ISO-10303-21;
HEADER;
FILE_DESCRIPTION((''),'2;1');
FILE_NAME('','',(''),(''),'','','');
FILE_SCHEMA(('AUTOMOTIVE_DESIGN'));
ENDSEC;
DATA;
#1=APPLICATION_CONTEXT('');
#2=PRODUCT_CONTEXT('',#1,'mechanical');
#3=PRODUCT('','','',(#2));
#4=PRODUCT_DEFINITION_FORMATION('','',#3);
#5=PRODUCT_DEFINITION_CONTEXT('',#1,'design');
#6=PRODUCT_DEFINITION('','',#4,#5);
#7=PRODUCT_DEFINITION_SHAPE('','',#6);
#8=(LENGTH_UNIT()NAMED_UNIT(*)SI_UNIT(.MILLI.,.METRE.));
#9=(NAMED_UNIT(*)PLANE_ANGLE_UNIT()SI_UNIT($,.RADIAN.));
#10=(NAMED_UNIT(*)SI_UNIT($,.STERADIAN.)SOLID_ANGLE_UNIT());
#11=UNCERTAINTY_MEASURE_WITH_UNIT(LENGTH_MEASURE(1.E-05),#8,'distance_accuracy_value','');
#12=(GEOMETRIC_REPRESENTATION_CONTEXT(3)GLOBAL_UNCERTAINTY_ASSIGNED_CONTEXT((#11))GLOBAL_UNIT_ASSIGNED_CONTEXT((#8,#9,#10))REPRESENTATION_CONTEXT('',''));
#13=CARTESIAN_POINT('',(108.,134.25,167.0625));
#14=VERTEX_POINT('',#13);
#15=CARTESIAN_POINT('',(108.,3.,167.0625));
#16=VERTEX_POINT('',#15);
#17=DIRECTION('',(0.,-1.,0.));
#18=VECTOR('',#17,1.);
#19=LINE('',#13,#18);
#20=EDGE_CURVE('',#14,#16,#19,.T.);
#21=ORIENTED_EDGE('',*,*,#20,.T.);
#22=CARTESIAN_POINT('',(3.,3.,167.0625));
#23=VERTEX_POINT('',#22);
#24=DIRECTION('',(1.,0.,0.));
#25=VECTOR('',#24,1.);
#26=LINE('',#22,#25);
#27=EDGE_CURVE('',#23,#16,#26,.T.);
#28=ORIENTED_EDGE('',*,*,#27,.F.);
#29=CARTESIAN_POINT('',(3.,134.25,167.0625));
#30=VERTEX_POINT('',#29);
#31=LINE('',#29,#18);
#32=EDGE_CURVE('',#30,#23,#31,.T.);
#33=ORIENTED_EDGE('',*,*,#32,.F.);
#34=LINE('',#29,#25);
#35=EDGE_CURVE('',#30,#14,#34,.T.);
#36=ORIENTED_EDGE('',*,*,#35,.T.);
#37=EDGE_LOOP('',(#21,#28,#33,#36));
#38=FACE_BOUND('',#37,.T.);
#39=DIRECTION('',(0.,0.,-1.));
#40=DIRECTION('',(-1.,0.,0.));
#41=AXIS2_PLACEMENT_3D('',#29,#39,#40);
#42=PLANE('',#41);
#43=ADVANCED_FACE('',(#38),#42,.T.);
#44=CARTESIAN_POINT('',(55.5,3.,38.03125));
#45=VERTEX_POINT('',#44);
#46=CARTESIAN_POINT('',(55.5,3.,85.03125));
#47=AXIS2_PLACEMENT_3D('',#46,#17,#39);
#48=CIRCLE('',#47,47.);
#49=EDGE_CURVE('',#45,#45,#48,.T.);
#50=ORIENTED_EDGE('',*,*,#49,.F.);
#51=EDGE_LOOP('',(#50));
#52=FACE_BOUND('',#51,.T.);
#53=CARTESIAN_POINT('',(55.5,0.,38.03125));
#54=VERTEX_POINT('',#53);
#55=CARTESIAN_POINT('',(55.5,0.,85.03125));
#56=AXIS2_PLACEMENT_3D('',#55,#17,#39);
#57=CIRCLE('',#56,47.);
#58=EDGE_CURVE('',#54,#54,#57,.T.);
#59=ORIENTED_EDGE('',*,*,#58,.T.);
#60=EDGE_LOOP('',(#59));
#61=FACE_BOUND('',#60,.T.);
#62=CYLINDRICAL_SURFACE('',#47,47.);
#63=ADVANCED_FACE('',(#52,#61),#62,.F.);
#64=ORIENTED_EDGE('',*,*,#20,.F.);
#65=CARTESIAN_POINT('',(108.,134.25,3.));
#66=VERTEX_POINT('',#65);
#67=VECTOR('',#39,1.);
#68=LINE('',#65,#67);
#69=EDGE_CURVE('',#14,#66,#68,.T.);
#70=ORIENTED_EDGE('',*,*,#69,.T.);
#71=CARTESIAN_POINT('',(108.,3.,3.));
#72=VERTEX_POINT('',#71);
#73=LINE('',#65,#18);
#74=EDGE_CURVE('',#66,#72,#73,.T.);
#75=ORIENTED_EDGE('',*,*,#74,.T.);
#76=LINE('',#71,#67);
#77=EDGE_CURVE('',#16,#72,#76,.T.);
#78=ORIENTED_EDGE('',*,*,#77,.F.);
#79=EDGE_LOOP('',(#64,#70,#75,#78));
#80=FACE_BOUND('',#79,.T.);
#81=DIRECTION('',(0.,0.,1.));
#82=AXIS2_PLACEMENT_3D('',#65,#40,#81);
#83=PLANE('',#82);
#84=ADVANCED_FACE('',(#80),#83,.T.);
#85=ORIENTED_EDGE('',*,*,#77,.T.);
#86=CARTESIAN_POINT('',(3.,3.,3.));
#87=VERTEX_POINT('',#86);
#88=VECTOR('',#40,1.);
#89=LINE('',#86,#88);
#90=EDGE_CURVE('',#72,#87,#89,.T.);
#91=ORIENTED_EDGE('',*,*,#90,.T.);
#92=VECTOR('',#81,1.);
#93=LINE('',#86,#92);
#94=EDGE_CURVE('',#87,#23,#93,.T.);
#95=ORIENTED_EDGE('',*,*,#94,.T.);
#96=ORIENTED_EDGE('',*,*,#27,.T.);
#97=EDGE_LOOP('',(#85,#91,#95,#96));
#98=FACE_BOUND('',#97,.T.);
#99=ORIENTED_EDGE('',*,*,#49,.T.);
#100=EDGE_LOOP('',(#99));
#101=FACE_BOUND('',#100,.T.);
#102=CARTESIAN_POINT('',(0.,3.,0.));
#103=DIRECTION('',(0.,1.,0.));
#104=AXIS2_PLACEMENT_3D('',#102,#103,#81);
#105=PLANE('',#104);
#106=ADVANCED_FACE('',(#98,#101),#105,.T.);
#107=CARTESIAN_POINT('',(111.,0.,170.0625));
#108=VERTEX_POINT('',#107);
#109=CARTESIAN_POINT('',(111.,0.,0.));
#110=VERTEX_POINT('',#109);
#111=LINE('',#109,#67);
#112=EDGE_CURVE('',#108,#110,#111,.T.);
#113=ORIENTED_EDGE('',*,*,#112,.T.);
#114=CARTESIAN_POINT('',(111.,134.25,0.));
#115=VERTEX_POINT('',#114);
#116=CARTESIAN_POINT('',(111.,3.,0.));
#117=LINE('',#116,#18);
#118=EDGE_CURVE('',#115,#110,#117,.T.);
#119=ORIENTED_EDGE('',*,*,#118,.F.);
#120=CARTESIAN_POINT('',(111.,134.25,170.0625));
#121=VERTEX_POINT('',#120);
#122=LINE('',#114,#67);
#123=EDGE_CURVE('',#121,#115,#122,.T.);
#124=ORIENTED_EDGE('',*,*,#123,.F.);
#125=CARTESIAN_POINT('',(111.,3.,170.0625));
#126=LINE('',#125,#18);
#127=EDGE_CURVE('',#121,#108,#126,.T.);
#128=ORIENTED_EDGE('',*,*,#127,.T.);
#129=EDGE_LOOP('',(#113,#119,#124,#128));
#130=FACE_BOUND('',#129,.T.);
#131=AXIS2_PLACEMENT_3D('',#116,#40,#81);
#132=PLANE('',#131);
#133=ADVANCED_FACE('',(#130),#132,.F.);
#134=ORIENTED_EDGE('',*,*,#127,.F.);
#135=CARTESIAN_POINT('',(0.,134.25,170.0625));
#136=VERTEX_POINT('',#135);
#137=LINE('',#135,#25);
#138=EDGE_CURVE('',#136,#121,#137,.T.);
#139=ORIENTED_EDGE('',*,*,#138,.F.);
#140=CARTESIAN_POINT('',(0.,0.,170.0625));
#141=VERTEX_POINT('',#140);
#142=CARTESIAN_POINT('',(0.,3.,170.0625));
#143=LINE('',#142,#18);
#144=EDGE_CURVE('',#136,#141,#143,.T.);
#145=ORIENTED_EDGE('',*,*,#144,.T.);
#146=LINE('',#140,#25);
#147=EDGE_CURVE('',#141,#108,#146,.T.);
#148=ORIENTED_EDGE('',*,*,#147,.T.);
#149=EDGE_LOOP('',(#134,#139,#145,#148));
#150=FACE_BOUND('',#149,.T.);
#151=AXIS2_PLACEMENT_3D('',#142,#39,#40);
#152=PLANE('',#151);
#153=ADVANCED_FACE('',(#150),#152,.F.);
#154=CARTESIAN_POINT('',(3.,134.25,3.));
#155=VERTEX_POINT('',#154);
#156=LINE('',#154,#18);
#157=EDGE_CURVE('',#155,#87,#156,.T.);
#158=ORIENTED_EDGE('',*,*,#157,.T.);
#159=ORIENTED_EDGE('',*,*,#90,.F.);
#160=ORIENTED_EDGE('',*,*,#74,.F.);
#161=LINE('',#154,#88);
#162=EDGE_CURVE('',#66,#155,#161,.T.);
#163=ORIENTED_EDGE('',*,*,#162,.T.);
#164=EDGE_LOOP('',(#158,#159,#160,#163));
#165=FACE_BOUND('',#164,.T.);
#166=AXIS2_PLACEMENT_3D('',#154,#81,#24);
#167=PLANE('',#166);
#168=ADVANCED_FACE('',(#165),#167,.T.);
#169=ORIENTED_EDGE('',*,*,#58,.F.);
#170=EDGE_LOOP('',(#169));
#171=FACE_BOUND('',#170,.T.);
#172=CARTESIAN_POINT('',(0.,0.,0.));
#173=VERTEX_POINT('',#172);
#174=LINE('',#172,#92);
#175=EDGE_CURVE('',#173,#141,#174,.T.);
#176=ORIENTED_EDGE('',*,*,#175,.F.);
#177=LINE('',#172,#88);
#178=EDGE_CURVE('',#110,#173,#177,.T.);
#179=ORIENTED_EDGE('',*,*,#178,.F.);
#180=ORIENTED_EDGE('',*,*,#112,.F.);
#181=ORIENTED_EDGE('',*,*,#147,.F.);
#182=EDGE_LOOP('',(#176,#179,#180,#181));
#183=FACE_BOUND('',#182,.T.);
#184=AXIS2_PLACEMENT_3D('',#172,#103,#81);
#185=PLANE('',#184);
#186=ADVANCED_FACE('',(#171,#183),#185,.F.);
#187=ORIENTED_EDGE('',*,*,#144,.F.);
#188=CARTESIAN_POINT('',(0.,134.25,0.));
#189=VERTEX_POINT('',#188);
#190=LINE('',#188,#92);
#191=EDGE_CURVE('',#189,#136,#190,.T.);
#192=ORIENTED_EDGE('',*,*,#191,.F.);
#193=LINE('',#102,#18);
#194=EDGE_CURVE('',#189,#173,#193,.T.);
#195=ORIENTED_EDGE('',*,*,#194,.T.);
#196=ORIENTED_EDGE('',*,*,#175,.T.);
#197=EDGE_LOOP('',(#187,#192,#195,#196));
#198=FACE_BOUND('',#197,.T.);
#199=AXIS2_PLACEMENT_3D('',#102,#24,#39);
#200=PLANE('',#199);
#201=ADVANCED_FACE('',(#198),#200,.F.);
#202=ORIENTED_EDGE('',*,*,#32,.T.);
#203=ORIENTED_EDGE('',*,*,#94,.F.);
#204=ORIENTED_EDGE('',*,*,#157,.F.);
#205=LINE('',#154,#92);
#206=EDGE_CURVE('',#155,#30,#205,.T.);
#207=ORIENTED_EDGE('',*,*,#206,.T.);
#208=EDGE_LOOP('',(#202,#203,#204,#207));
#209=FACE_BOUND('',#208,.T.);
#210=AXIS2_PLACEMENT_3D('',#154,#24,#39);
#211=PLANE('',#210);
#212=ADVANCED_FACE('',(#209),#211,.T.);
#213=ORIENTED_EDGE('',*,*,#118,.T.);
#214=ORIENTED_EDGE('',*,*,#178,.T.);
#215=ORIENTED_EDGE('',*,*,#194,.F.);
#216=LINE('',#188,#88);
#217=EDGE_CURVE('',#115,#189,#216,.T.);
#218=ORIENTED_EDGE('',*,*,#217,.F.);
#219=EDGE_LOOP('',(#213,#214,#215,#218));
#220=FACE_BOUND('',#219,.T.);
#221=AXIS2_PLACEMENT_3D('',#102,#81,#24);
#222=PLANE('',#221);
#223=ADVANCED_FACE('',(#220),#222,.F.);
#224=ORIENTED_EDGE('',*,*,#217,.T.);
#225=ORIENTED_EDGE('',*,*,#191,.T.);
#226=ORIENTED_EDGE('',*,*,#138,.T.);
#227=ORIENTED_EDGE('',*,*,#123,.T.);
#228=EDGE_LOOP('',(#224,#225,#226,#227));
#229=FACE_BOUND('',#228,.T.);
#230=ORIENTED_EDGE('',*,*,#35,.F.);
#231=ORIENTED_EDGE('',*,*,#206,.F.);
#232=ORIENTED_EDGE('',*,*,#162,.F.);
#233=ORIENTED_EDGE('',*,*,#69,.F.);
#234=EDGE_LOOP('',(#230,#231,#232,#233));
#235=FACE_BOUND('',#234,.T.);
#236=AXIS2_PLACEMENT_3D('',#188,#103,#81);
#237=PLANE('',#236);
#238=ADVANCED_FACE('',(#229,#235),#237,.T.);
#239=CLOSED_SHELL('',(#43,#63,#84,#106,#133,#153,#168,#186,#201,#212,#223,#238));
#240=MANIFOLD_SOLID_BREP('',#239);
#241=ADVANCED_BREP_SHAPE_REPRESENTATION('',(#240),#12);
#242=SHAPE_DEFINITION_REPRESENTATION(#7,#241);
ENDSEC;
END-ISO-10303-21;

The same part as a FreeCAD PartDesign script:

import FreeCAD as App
import Part
import Sketcher
from FreeCAD import Vector


def add_polygon(sketch, points):
    """Adds a closed chain of lines whose ends are joined by coincident constraints."""
    first, n = sketch.GeometryCount, len(points)
    for a, b in zip(points, points[1:] + points[:1]):
        sketch.addGeometry(Part.LineSegment(App.Vector(*a, 0), App.Vector(*b, 0)), False)
    for i in range(n):
        sketch.addConstraint(Sketcher.Constraint("Coincident", first + i, 2, first + (i + 1) % n, 1))

doc = App.newDocument("Part")
body = doc.addObject("PartDesign::Body", "Body")

sketch1 = body.newObject("Sketcher::SketchObject", "Sketch")
sketch1.AttachmentSupport = (doc.getObject("XZ_Plane"), [""])
sketch1.MapMode = "FlatFace"
add_polygon(sketch1, [(0, 0), (0, 170), (111, 170), (111, 0)])
sketch1.addConstraint([
    Sketcher.Constraint("Vertical", 0),
    Sketcher.Constraint("Horizontal", 1),
    Sketcher.Constraint("Vertical", 2),
    Sketcher.Constraint("Horizontal", 3),
    Sketcher.Constraint("Coincident", 3, 2, -1, 1),
    Sketcher.Constraint("DistanceX", 1, 1, 1, 2, 111.0),
    Sketcher.Constraint("DistanceY", 0, 1, 0, 2, 170.0625),
])
pad1 = body.newObject("PartDesign::Pad", "Pad")
pad1.Profile = sketch1
pad1.Length = 3
pad1.Reversed = True

sketch2 = body.newObject("Sketcher::SketchObject", "Sketch001")
sketch2.AttachmentSupport = (doc.getObject("XZ_Plane"), [""])
sketch2.MapMode = "FlatFace"
sketch2.AttachmentOffset = App.Placement(Vector(0, 0, -3), App.Rotation())
add_polygon(sketch2, [(0, 0), (0, 170), (111, 170), (111, 0)])
add_polygon(sketch2, [(108, 167), (3, 167), (3, 3), (108, 3)])
sketch2.addConstraint([
    Sketcher.Constraint("Vertical", 0),
    Sketcher.Constraint("Horizontal", 1),
    Sketcher.Constraint("Vertical", 2),
    Sketcher.Constraint("Horizontal", 3),
    Sketcher.Constraint("Horizontal", 4),
    Sketcher.Constraint("Vertical", 5),
    Sketcher.Constraint("Horizontal", 6),
    Sketcher.Constraint("Vertical", 7),
    Sketcher.Constraint("Coincident", 3, 2, -1, 1),
    Sketcher.Constraint("DistanceX", 1, 1, 1, 2, 111.0),
    Sketcher.Constraint("DistanceX", 4, 2, 4, 1, 105.0),
    Sketcher.Constraint("DistanceX", -1, 1, 4, 2, 3.0),
    Sketcher.Constraint("DistanceY", -1, 1, 5, 2, 3.0),
    Sketcher.Constraint("DistanceY", 4, 2, 0, 2, 3.0),
    Sketcher.Constraint("DistanceY", 0, 1, 0, 2, 170.0625),
])
pad2 = body.newObject("PartDesign::Pad", "Pad001")
pad2.Profile = sketch2
pad2.Length = 131.25
pad2.Reversed = True

sketch3 = body.newObject("Sketcher::SketchObject", "Sketch002")
sketch3.AttachmentSupport = (doc.getObject("XZ_Plane"), [""])
sketch3.MapMode = "FlatFace"
sketch3.addGeometry(Part.Circle(Vector(56, 85, 0), Vector(0, 0, 1), 47), False)
sketch3.addConstraint([
    Sketcher.Constraint("Diameter", 0, 94.0),
    Sketcher.Constraint("DistanceX", -1, 1, 0, 3, 55.5),
    Sketcher.Constraint("DistanceY", -1, 1, 0, 3, 85.03125),
])
pocket1 = body.newObject("PartDesign::Pocket", "Pocket")
pocket1.Profile = sketch3
pocket1.Length = 3

doc.recompute()
